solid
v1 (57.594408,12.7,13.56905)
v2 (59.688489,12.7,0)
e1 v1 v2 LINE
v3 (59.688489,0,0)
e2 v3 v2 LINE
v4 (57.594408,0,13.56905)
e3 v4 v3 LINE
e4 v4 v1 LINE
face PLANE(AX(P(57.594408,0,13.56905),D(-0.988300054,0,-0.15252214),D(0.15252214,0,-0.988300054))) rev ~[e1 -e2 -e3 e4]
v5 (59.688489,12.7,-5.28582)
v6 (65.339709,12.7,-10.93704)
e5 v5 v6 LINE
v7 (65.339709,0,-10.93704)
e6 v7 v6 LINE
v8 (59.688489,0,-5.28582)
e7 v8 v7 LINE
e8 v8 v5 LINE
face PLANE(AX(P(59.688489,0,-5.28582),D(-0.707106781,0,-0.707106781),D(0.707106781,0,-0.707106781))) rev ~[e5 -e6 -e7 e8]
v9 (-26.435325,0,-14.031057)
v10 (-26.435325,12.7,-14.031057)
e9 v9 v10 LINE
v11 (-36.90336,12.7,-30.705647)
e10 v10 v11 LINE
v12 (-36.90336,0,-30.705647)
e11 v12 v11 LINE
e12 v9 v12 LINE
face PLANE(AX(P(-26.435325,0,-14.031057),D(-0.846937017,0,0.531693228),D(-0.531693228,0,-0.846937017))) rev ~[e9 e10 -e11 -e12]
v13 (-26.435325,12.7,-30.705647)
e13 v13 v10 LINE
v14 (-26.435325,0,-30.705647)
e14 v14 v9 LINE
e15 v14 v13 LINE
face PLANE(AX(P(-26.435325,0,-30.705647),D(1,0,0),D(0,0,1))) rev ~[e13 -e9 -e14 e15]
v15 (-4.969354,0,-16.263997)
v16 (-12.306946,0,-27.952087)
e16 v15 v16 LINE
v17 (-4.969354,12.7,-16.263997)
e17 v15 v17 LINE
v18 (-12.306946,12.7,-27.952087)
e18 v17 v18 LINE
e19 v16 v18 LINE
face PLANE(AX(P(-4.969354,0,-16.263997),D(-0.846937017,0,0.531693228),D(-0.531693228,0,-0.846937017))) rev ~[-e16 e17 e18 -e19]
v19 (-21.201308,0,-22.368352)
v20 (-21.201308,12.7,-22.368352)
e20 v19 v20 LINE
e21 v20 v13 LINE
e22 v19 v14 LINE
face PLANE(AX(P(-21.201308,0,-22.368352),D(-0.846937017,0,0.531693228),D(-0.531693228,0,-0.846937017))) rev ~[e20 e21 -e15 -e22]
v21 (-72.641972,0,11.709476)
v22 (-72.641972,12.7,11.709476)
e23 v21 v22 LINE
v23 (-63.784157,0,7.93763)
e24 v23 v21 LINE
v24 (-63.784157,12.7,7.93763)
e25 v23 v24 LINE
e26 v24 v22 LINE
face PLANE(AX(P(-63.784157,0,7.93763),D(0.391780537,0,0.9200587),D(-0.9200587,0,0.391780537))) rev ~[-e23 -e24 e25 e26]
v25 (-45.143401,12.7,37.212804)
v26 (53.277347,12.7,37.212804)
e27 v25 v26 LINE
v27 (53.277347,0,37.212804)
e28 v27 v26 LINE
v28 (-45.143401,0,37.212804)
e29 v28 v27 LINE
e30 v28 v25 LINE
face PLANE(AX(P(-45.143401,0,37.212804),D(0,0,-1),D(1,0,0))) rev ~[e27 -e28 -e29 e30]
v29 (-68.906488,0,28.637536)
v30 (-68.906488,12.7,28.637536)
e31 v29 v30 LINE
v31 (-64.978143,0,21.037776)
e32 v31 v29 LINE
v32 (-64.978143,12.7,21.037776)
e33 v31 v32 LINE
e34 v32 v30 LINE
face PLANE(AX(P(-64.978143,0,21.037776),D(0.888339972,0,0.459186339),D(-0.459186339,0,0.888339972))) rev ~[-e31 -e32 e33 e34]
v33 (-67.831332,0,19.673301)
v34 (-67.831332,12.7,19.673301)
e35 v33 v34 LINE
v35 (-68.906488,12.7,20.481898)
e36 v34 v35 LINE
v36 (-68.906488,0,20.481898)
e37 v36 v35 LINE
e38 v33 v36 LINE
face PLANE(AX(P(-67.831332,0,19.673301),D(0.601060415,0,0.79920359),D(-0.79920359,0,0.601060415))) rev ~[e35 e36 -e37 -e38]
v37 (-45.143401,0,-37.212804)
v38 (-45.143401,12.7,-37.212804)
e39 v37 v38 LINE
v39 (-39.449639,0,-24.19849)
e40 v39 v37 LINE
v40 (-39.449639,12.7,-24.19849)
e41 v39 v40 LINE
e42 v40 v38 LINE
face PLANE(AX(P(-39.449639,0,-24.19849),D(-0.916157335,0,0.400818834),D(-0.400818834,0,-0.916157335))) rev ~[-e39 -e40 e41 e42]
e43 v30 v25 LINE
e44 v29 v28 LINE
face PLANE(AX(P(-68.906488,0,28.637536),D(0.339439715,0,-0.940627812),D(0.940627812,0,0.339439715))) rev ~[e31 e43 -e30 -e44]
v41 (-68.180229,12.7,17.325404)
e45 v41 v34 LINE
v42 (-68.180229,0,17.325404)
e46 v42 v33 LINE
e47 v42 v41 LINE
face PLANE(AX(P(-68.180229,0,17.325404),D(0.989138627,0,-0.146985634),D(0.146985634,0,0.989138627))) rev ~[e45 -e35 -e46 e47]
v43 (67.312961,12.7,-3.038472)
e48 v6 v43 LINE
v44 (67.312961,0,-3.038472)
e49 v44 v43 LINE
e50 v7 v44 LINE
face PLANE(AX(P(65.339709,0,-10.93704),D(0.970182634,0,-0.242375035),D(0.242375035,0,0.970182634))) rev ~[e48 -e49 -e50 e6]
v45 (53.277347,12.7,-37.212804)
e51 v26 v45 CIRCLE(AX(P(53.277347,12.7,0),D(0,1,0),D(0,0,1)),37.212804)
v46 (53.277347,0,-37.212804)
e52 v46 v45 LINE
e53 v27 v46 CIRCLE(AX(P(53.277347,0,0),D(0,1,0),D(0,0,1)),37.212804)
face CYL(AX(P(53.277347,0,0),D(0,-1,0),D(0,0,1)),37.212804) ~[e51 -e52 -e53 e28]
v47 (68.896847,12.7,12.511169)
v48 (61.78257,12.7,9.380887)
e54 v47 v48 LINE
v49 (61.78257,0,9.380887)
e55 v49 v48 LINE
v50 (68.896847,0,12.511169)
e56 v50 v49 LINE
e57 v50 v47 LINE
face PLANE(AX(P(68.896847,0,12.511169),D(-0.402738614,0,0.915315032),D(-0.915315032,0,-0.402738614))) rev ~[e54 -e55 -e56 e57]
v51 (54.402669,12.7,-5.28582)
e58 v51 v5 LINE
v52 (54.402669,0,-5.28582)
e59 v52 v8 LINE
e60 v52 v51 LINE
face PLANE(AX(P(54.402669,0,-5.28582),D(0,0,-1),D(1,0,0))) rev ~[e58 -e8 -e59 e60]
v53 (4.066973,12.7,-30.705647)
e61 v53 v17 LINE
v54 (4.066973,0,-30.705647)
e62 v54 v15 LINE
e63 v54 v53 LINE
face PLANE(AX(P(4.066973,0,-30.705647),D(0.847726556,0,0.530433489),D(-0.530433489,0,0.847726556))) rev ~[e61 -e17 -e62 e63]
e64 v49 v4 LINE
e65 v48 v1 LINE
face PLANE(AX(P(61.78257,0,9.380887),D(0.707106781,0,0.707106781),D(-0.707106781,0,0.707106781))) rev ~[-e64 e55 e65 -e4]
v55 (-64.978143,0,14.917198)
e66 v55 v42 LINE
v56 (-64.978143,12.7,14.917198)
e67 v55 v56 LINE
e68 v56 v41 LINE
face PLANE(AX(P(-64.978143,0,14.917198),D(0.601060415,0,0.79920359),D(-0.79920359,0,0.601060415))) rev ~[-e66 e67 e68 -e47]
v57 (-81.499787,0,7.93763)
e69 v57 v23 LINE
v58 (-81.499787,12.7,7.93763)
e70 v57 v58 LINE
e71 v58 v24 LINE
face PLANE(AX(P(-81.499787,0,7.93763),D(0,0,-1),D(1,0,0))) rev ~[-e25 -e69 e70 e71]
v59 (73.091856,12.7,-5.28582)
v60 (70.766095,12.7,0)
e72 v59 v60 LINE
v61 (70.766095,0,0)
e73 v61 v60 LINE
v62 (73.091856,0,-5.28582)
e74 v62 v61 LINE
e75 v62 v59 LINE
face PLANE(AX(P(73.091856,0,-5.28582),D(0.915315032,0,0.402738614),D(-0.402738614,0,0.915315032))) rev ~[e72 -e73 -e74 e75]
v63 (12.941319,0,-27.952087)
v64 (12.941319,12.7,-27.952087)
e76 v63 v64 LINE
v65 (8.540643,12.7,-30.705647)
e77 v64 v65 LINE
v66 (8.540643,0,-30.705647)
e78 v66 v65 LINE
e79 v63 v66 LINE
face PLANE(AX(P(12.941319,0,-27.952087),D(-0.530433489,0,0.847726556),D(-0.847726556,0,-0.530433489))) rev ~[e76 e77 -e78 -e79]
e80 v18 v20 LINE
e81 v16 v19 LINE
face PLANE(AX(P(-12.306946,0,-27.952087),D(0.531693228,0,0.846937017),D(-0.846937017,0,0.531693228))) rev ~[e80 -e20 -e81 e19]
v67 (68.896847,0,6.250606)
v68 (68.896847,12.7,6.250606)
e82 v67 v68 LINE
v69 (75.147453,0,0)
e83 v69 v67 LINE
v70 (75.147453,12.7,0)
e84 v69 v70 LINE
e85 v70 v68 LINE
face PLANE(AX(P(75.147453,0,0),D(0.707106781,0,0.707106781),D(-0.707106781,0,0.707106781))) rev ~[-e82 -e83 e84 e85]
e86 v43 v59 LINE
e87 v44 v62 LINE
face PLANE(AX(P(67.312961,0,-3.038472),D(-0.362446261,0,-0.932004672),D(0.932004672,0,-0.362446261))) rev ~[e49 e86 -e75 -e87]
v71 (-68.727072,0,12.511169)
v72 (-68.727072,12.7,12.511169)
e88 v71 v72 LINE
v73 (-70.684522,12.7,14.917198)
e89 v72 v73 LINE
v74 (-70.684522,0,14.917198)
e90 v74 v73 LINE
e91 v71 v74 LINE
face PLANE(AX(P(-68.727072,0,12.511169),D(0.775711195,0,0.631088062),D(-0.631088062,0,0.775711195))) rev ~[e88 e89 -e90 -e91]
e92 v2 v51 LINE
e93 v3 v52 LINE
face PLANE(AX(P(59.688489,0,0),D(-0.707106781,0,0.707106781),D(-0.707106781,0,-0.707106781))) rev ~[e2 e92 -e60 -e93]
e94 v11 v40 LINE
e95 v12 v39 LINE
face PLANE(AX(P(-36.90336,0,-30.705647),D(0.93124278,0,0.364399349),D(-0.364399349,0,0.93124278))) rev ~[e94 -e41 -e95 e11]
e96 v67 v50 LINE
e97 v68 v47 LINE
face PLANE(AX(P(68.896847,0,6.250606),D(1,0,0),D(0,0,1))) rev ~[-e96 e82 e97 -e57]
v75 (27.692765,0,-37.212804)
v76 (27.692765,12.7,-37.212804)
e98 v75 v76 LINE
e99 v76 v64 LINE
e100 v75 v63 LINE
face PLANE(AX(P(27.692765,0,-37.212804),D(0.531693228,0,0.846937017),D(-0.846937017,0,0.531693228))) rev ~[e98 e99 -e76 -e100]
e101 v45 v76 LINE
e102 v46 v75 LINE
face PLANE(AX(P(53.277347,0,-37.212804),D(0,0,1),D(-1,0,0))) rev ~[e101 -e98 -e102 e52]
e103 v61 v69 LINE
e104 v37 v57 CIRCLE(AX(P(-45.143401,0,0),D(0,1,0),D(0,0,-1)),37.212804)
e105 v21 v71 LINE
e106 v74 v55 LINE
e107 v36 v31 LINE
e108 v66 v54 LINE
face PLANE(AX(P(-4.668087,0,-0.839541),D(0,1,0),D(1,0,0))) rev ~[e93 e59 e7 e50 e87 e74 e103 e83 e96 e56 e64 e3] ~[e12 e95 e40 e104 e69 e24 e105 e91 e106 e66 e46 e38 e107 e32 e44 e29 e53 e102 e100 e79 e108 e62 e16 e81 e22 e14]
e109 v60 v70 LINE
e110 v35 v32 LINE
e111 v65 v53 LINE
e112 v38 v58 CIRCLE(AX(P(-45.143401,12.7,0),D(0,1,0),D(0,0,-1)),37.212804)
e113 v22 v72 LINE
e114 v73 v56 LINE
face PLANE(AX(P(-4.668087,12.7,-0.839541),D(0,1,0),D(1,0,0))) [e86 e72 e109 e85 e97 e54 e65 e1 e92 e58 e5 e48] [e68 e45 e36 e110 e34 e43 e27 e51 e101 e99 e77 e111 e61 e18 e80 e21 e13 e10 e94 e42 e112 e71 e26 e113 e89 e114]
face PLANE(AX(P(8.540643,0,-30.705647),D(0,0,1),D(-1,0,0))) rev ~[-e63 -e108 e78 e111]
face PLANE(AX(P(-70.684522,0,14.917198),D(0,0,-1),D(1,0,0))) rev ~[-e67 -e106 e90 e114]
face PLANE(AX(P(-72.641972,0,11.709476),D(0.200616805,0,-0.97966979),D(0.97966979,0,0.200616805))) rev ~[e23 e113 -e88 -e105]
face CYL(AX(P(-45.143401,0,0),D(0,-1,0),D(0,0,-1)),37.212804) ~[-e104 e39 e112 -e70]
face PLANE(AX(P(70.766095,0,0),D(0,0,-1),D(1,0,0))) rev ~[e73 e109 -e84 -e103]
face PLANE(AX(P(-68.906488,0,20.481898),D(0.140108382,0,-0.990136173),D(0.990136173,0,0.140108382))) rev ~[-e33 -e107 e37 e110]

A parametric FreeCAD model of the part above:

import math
import FreeCAD as App
import Part
import Sketcher

V = App.Vector
Q = App.Units.Quantity

doc = App.newDocument("Part")
body = doc.addObject("PartDesign::Body", "Body")

# Sketch on XZ plane
sketch1 = body.newObject("Sketcher::SketchObject", "Sketch")
sketch1.AttachmentSupport = (doc.getObject("XZ_Plane"), [""])
sketch1.MapMode = "FlatFace"
sketch1.addGeometry([
    Part.LineSegment(V(-45.1, 37.2, 0), V(53.3, 37.2, 0)),  # 0
    Part.ArcOfCircle(Part.Circle(V(53.3, 0, 0), V(0, 0, 1), 37.2), math.radians(-90), math.radians(90)),  # 1
    Part.LineSegment(V(53.3, -37.2, 0), V(27.7, -37.2, 0)),  # 2
    Part.LineSegment(V(27.7, -37.2, 0), V(12.9, -28, 0)),  # 3
    Part.LineSegment(V(12.9, -28, 0), V(8.5, -30.7, 0)),  # 4
    Part.LineSegment(V(8.5, -30.7, 0), V(4.1, -30.7, 0)),  # 5
    Part.LineSegment(V(4.1, -30.7, 0), V(-5, -16.3, 0)),  # 6
    Part.LineSegment(V(-5, -16.3, 0), V(-12.3, -28, 0)),  # 7
    Part.LineSegment(V(-12.3, -28, 0), V(-21.2, -22.4, 0)),  # 8
    Part.LineSegment(V(-21.2, -22.4, 0), V(-26.4, -30.7, 0)),  # 9
    Part.LineSegment(V(-26.4, -30.7, 0), V(-26.4, -14, 0)),  # 10
    Part.LineSegment(V(-26.4, -14, 0), V(-36.9, -30.7, 0)),  # 11
    Part.LineSegment(V(-36.9, -30.7, 0), V(-39.4, -24.2, 0)),  # 12
    Part.LineSegment(V(-39.4, -24.2, 0), V(-45.1, -37.2, 0)),  # 13
    Part.ArcOfCircle(Part.Circle(V(-45.1, 0, 0), V(0, 0, 1), 37.2), math.radians(168), math.radians(270)),  # 14
    Part.LineSegment(V(-81.5, 7.9, 0), V(-63.8, 7.9, 0)),  # 15
    Part.LineSegment(V(-63.8, 7.9, 0), V(-72.6, 11.7, 0)),  # 16
    Part.LineSegment(V(-72.6, 11.7, 0), V(-68.7, 12.5, 0)),  # 17
    Part.LineSegment(V(-68.7, 12.5, 0), V(-70.7, 14.9, 0)),  # 18
    Part.LineSegment(V(-70.7, 14.9, 0), V(-65, 14.9, 0)),  # 19
    Part.LineSegment(V(-65, 14.9, 0), V(-68.2, 17.3, 0)),  # 20
    Part.LineSegment(V(-68.2, 17.3, 0), V(-67.8, 19.7, 0)),  # 21
    Part.LineSegment(V(-67.8, 19.7, 0), V(-68.9, 20.5, 0)),  # 22
    Part.LineSegment(V(-68.9, 20.5, 0), V(-65, 21, 0)),  # 23
    Part.LineSegment(V(-65, 21, 0), V(-68.9, 28.6, 0)),  # 24
    Part.LineSegment(V(-68.9, 28.6, 0), V(-45.1, 37.2, 0)),  # 25
    Part.LineSegment(V(65.3, -10.9, 0), V(67.3, -3, 0)),  # 26
    Part.LineSegment(V(67.3, -3, 0), V(73.1, -5.3, 0)),  # 27
    Part.LineSegment(V(73.1, -5.3, 0), V(70.8, 0, 0)),  # 28
    Part.LineSegment(V(70.8, 0, 0), V(75.1, 0, 0)),  # 29
    Part.LineSegment(V(75.1, 0, 0), V(68.9, 6.3, 0)),  # 30
    Part.LineSegment(V(68.9, 6.3, 0), V(68.9, 12.5, 0)),  # 31
    Part.LineSegment(V(68.9, 12.5, 0), V(61.8, 9.4, 0)),  # 32
    Part.LineSegment(V(61.8, 9.4, 0), V(57.6, 13.6, 0)),  # 33
    Part.LineSegment(V(57.6, 13.6, 0), V(59.7, 0, 0)),  # 34
    Part.LineSegment(V(59.7, 0, 0), V(54.4, -5.3, 0)),  # 35
    Part.LineSegment(V(54.4, -5.3, 0), V(59.7, -5.3, 0)),  # 36
    Part.LineSegment(V(59.7, -5.3, 0), V(65.3, -10.9, 0)),  # 37
], False)
sketch1.addConstraint([
    Sketcher.Constraint("Tangent", 0, 2, 1, 2),
    Sketcher.Constraint("Tangent", 1, 1, 2, 1),
    Sketcher.Constraint("Coincident", 2, 2, 3, 1),
    Sketcher.Constraint("Coincident", 3, 2, 4, 1),
    Sketcher.Constraint("Coincident", 4, 2, 5, 1),
    Sketcher.Constraint("Coincident", 5, 2, 6, 1),
    Sketcher.Constraint("Coincident", 6, 2, 7, 1),
    Sketcher.Constraint("Coincident", 7, 2, 8, 1),
    Sketcher.Constraint("Coincident", 8, 2, 9, 1),
    Sketcher.Constraint("Coincident", 9, 2, 10, 1),
    Sketcher.Constraint("Coincident", 10, 2, 11, 1),
    Sketcher.Constraint("Coincident", 11, 2, 12, 1),
    Sketcher.Constraint("Coincident", 12, 2, 13, 1),
    Sketcher.Constraint("Coincident", 13, 2, 14, 2),
    Sketcher.Constraint("Coincident", 14, 1, 15, 1),
    Sketcher.Constraint("Coincident", 15, 2, 16, 1),
    Sketcher.Constraint("Coincident", 16, 2, 17, 1),
    Sketcher.Constraint("Coincident", 17, 2, 18, 1),
    Sketcher.Constraint("Coincident", 18, 2, 19, 1),
    Sketcher.Constraint("Coincident", 19, 2, 20, 1),
    Sketcher.Constraint("Coincident", 20, 2, 21, 1),
    Sketcher.Constraint("Coincident", 21, 2, 22, 1),
    Sketcher.Constraint("Coincident", 22, 2, 23, 1),
    Sketcher.Constraint("Coincident", 23, 2, 24, 1),
    Sketcher.Constraint("Coincident", 24, 2, 25, 1),
    Sketcher.Constraint("Coincident", 25, 2, 0, 1),
    Sketcher.Constraint("Coincident", 26, 2, 27, 1),
    Sketcher.Constraint("Coincident", 27, 2, 28, 1),
    Sketcher.Constraint("Coincident", 28, 2, 29, 1),
    Sketcher.Constraint("Coincident", 29, 2, 30, 1),
    Sketcher.Constraint("Coincident", 30, 2, 31, 1),
    Sketcher.Constraint("Coincident", 31, 2, 32, 1),
    Sketcher.Constraint("Coincident", 32, 2, 33, 1),
    Sketcher.Constraint("Coincident", 33, 2, 34, 1),
    Sketcher.Constraint("Coincident", 34, 2, 35, 1),
    Sketcher.Constraint("Coincident", 35, 2, 36, 1),
    Sketcher.Constraint("Coincident", 36, 2, 37, 1),
    Sketcher.Constraint("Coincident", 37, 2, 26, 1),
    Sketcher.Constraint("Horizontal", 0),
    Sketcher.Constraint("Horizontal", 2),
    Sketcher.Constraint("Horizontal", 5),
    Sketcher.Constraint("Vertical", 10),
    Sketcher.Constraint("Horizontal", 15),
    Sketcher.Constraint("Horizontal", 19),
    Sketcher.Constraint("Horizontal", 29),
    Sketcher.Constraint("Vertical", 31),
    Sketcher.Constraint("Horizontal", 36),
    Sketcher.Constraint("Equal", 1, 14),
    Sketcher.Constraint("Symmetric", 13, 2, 25, 2, -1),
    Sketcher.Constraint("PointOnObject", 1, 3, -1),
    Sketcher.Constraint("PointOnObject", 28, 2, -1),
    Sketcher.Constraint("PointOnObject", 34, 2, -1),
    Sketcher.Constraint("Perpendicular", 4, 6),
    Sketcher.Constraint("Perpendicular", 3, 7),
    Sketcher.Constraint("Perpendicular", 7, 8),
    Sketcher.Constraint("Perpendicular", 8, 9),
    Sketcher.Constraint("Parallel", 9, 11),
    Sketcher.Constraint("Parallel", 20, 22),
    Sketcher.Constraint("Perpendicular", 28, 32),
    Sketcher.Constraint("Parallel", 30, 33),
    Sketcher.Constraint("Perpendicular", 33, 35),
    Sketcher.Constraint("Perpendicular", 35, 37),
    Sketcher.Constraint("Horizontal", 3, 2, 7, 2),
    Sketcher.Constraint("Horizontal", 5, 2, 9, 2),
    Sketcher.Constraint("Horizontal", 9, 2, 11, 2),
    Sketcher.Constraint("Horizontal", 17, 2, 31, 2),
    Sketcher.Constraint("Horizontal", 27, 2, 35, 2),
    Sketcher.Constraint("Vertical", 14, 3, 13, 2),
    Sketcher.Constraint("Vertical", 19, 2, 23, 2),
    Sketcher.Constraint("Vertical", 22, 2, 24, 2),
    Sketcher.Constraint("Vertical", 34, 2, 36, 2),
    Sketcher.Constraint("Angle", 30, Q("135 deg")),
    Sketcher.Constraint("Distance", 23, Q("0.1562 in")),
    Sketcher.Constraint("Radius", 1, 37.212804),
    Sketcher.Constraint("DistanceX", 14, 3, 3, 2, Q("2.2868 in")),
    Sketcher.Constraint("Distance", 8, 10.501798),
    Sketcher.Constraint("Distance", 27, 6.2005),
    Sketcher.Constraint("DistanceX", 0, 1, 0, 2, 98.420749),
    Sketcher.Constraint("DistanceX", 5, 2, 5, 1, 4.47367),
    Sketcher.Constraint("DistanceX", 15, 1, 15, 2, 17.71563),
    Sketcher.Constraint("DistanceX", 19, 1, 19, 2, 5.706379),
    Sketcher.Constraint("DistanceX", 36, 1, 36, 2, 5.28582),
    Sketcher.Constraint("DistanceY", 10, 1, 10, 2, 16.67459),
    Sketcher.Constraint("DistanceX", 14, 3, -1, 1, 45.143401),
    Sketcher.Constraint("DistanceY", -1, 1, 21, 2, 19.673301),
    Sketcher.Constraint("DistanceY", -1, 1, 22, 2, 20.481898),
    Sketcher.Constraint("DistanceX", 9, 2, 5, 2, 30.502298),
    Sketcher.Constraint("DistanceX", 16, 2, 17, 2, 3.914901),
    Sketcher.Constraint("DistanceY", 18, 2, 22, 2, 5.5647),
    Sketcher.Constraint("DistanceX", 1, 3, 30, 2, 15.619499),
    Sketcher.Constraint("DistanceX", 35, 2, 32, 2, 7.379901),
    Sketcher.Constraint("Distance", 4, 5.19115),
    Sketcher.Constraint("Distance", 6, 17.03574),
    Sketcher.Constraint("Distance", 11, 19.688111),
    Sketcher.Constraint("Distance", 21, 2.373679),
    Sketcher.Constraint("Distance", 26, 8.14132),
    Sketcher.Constraint("Distance", 30, 8.839692),
    Sketcher.Constraint("Distance", 32, 7.772489),
    Sketcher.Constraint("Distance", 37, 7.992031),
    Sketcher.Constraint("DistanceX", 2, 2, 2, 1, 25.584583),
    Sketcher.Constraint("DistanceX", 29, 1, 29, 2, 4.381358),
    Sketcher.Constraint("DistanceY", 31, 1, 31, 2, 6.260563),
    Sketcher.Constraint("DistanceX", 12, 2, -1, 1, 39.449639),
    Sketcher.Constraint("DistanceY", 12, 2, -1, 1, 24.19849),
    Sketcher.Constraint("DistanceY", -1, 1, 14, 1, 7.93763),
    Sketcher.Constraint("DistanceX", 17, 2, -1, 1, 68.727072),
    Sketcher.Constraint("DistanceX", 18, 2, -1, 1, 70.684522),
    Sketcher.Constraint("DistanceX", 20, 2, -1, 1, 68.180229),
    Sketcher.Constraint("DistanceX", 22, 2, -1, 1, 68.906488),
    Sketcher.Constraint("DistanceX", -1, 1, 26, 2, 67.312961),
    Sketcher.Constraint("DistanceX", -1, 1, 33, 2, 57.594408),
    Sketcher.Constraint("DistanceY", 16, 2, 20, 2, 5.615929),
    Sketcher.Constraint("DistanceY", 23, 2, 24, 2, 7.59976),
])
pad1 = body.newObject("PartDesign::Pad", "Pad")
pad1.Profile = sketch1
pad1.Length = Q("0.5 in")
pad1.Reversed = True

doc.recompute()
